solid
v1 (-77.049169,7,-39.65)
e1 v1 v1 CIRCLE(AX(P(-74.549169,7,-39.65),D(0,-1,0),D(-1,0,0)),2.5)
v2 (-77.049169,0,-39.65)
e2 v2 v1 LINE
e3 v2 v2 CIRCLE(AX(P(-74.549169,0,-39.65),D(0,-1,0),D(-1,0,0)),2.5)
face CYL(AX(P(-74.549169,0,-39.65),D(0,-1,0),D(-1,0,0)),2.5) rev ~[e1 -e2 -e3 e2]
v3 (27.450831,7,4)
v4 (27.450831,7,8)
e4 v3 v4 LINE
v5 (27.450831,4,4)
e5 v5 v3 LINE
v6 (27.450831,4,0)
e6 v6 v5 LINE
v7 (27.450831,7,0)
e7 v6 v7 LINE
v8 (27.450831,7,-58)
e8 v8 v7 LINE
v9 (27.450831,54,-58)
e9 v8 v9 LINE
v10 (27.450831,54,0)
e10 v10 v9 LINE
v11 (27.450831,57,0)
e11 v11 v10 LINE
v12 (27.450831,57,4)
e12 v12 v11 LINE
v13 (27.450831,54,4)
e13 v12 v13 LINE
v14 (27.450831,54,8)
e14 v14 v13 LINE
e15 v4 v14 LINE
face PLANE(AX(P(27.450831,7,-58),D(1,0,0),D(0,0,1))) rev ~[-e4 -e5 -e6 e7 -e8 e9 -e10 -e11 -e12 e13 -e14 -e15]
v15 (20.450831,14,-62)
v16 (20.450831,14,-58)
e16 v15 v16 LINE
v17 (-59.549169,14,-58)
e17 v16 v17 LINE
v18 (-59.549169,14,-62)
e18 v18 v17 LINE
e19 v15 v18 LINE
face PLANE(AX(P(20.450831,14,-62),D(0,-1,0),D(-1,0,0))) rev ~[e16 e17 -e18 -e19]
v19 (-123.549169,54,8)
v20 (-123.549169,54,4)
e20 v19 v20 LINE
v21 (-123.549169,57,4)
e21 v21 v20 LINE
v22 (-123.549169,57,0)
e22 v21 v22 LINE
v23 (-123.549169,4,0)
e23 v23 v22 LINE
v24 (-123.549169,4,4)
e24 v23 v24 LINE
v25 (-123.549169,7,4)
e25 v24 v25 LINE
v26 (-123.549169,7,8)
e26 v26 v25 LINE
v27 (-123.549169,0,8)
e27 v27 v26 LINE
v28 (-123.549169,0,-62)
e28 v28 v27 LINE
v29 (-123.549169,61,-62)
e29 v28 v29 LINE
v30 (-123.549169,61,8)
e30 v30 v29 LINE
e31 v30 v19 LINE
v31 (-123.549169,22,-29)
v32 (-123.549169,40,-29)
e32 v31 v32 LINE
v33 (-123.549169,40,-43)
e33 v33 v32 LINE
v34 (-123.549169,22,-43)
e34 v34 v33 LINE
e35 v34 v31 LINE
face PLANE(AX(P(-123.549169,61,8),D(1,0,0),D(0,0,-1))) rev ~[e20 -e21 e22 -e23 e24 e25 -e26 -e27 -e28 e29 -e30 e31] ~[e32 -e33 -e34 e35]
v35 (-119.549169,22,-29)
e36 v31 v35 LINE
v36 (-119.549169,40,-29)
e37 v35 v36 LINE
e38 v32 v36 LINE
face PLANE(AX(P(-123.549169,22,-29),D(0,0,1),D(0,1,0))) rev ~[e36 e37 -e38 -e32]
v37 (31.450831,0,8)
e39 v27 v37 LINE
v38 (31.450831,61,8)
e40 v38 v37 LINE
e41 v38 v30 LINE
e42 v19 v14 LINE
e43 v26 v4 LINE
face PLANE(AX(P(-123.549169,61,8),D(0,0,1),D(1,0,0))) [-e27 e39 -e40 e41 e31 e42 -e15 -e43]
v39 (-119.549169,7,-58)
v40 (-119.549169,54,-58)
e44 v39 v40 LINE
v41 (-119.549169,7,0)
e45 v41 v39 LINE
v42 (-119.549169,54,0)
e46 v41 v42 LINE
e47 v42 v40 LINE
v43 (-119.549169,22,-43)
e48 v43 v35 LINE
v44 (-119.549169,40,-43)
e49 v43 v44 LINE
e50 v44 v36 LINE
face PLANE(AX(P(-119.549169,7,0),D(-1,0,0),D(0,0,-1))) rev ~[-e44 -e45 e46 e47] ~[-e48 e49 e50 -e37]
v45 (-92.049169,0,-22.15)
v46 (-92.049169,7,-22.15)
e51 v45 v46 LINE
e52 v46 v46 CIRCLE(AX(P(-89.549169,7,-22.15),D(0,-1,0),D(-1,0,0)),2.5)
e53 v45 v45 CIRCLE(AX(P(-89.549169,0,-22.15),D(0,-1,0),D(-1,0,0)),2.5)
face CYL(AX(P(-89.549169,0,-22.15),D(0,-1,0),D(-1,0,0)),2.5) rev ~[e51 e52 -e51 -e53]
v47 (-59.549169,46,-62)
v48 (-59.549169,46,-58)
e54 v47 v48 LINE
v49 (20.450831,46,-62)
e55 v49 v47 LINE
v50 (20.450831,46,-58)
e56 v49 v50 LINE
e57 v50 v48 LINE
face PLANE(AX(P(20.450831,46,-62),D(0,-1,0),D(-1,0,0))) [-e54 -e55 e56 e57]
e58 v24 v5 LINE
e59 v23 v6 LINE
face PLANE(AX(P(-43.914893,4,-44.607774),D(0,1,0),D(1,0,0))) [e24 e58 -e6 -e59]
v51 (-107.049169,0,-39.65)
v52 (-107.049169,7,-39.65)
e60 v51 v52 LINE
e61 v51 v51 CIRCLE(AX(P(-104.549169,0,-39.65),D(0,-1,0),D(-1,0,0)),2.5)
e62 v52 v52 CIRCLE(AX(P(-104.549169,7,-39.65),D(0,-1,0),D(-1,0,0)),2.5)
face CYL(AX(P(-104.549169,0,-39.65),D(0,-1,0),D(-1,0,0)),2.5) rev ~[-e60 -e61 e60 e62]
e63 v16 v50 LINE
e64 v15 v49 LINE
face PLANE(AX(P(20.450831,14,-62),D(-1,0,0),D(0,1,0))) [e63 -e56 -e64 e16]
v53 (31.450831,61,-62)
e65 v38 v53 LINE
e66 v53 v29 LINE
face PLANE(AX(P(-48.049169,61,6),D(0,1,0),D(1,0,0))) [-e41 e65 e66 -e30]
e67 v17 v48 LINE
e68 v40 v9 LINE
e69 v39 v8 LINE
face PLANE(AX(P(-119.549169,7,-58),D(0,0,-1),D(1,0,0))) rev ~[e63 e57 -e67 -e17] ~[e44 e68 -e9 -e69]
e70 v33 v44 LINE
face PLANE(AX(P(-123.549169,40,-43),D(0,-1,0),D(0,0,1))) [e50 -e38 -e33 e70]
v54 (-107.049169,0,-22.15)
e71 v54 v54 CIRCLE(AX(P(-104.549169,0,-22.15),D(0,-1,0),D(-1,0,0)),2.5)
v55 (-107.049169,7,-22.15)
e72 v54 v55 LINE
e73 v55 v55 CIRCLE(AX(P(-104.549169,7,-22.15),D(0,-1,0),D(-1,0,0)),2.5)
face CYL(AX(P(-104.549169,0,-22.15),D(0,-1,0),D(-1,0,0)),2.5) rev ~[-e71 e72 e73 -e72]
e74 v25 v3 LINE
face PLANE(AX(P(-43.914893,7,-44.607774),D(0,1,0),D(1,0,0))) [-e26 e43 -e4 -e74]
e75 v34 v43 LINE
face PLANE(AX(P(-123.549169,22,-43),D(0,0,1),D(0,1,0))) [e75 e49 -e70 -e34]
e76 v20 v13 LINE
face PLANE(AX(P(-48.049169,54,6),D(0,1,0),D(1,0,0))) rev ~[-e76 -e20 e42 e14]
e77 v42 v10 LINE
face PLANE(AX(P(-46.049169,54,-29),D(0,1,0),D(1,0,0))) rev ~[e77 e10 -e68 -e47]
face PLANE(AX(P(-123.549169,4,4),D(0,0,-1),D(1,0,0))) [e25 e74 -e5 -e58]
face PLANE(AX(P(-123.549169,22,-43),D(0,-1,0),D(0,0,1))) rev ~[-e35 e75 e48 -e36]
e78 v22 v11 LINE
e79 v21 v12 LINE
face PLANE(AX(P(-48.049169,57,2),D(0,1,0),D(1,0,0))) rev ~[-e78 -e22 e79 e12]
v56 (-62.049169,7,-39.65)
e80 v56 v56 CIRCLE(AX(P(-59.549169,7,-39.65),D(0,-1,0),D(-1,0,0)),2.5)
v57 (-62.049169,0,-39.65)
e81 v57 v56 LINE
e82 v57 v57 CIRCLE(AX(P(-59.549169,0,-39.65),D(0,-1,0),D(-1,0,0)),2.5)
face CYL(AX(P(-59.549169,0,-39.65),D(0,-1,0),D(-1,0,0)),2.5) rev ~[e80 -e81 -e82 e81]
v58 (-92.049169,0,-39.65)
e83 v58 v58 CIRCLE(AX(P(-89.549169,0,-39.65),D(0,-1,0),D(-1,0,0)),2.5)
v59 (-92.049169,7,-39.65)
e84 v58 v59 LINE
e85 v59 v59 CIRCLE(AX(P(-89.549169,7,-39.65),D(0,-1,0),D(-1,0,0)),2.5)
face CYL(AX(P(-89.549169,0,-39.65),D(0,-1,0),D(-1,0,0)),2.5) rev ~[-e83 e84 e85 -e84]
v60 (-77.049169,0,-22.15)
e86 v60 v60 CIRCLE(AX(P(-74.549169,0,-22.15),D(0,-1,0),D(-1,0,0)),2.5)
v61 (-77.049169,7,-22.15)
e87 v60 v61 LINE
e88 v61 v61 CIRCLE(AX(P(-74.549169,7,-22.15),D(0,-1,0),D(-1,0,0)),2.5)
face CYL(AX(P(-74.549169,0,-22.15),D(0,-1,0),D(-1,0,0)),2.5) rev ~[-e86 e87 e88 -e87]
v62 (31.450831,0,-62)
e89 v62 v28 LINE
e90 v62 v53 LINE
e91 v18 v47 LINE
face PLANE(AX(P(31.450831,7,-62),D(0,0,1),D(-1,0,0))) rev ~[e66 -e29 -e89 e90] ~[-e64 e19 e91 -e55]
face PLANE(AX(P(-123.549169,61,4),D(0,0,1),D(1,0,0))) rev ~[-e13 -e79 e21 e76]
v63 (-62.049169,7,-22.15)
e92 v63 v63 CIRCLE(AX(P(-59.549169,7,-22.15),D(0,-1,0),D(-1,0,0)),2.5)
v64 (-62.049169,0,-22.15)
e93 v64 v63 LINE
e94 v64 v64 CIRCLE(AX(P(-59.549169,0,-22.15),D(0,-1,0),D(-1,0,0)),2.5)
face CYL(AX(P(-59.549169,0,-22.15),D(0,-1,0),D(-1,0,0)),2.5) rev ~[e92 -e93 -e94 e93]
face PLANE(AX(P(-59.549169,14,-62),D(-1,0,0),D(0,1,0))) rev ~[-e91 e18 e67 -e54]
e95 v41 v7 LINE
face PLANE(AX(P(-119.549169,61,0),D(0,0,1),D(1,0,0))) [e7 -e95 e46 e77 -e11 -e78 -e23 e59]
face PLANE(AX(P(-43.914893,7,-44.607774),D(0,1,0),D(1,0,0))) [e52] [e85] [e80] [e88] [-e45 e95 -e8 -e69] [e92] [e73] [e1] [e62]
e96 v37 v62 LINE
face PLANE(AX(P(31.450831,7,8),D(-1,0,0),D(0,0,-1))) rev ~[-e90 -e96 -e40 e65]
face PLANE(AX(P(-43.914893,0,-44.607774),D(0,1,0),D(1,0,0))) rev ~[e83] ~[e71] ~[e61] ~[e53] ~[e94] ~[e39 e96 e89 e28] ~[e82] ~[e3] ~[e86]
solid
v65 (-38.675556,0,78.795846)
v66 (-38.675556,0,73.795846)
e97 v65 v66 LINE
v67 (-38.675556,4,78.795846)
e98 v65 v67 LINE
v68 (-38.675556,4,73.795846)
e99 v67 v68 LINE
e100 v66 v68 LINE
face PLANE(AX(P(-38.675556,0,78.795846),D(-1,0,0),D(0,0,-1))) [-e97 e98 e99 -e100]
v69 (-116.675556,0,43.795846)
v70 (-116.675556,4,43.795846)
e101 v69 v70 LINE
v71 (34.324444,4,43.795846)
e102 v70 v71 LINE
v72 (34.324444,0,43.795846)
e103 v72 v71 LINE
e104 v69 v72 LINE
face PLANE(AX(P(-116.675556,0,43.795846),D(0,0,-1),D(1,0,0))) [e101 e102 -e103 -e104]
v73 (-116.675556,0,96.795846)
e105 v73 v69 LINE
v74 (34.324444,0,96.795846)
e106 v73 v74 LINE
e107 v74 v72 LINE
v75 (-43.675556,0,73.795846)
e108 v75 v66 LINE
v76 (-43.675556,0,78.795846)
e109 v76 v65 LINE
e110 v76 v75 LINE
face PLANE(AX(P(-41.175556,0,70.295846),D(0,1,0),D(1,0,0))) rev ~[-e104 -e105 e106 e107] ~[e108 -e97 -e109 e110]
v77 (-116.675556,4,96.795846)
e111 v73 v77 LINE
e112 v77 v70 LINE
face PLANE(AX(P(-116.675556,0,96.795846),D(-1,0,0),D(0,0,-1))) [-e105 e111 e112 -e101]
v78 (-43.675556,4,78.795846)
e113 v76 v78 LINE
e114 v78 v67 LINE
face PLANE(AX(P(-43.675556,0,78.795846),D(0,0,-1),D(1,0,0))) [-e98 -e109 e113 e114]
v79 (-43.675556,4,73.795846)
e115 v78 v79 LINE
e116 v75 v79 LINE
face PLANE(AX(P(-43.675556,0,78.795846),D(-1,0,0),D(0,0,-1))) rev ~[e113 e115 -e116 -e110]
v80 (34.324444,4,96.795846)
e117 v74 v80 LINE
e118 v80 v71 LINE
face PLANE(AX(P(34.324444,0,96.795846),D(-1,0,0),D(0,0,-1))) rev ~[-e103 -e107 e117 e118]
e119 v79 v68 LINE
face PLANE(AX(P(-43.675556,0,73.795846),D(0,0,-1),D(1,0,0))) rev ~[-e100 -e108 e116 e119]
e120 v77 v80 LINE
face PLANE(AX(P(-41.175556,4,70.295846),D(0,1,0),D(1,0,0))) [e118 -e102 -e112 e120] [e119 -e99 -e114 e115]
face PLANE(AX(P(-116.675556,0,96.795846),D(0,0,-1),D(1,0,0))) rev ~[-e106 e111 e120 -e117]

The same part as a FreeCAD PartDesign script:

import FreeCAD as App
import Part
import Sketcher
from FreeCAD import Vector
Q = App.Units.Quantity


def add_polygon(sketch, points):
    """Adds a closed chain of lines whose ends are joined by coincident constraints."""
    first, n = sketch.GeometryCount, len(points)
    for a, b in zip(points, points[1:] + points[:1]):
        sketch.addGeometry(Part.LineSegment(App.Vector(*a, 0), App.Vector(*b, 0)), False)
    for i in range(n):
        sketch.addConstraint(Sketcher.Constraint("Coincident", first + i, 2, first + (i + 1) % n, 1))

doc = App.newDocument("Part")
body = doc.addObject("PartDesign::Body", "Body")

sketch1 = doc.addObject("Sketcher::SketchObject", "Sketch")
body.addObject(sketch1)
sketch1.AttachmentSupport = (doc.XZ_Plane, [""])
sketch1.MapMode = "FlatFace"
add_polygon(sketch1, [(31, 8), (31, -62), (-124, -62), (-124, 8)])
sketch1.addConstraint(Sketcher.Constraint("Vertical", 0))
sketch1.addConstraint(Sketcher.Constraint("Horizontal", 1))
sketch1.addConstraint(Sketcher.Constraint("Vertical", 2))
sketch1.addConstraint(Sketcher.Constraint("Horizontal", 3))
sketch1.addConstraint(Sketcher.Constraint("DistanceX", 1, 2, 1, 1, Q("155 mm")))
sketch1.addConstraint(Sketcher.Constraint("DistanceY", 0, 2, 0, 1, Q("70 mm")))
sketch1.addConstraint(Sketcher.Constraint("DistanceY", 0, 2, -1, 1, Q("62 mm")))
sketch1.addConstraint(Sketcher.Constraint("DistanceX", -1, 1, 0, 2, Q("31.450831 mm")))
pad1 = doc.addObject("PartDesign::Pad", "Pad")
body.addObject(pad1)
pad1.Profile = sketch1
pad1.Length = 4
pad1.Reversed = True

sketch2 = doc.addObject("Sketcher::SketchObject", "Sketch001")
body.addObject(sketch2)
sketch2.AttachmentSupport = (doc.XZ_Plane, [""])
sketch2.MapMode = "FlatFace"
sketch2.AttachmentOffset = App.Placement(Vector(0, 0, -4), App.Rotation())
add_polygon(sketch2, [(27.5, 0), (27.5, 4), (-123.5, 4), (-123.5, 8), (31.5, 8), (31.5, -62), (-123.5, -62), (-123.5, 0)])
sketch2.addConstraint(Sketcher.Constraint("Vertical", 0))
sketch2.addConstraint(Sketcher.Constraint("Horizontal", 1))
sketch2.addConstraint(Sketcher.Constraint("Vertical", 2))
sketch2.addConstraint(Sketcher.Constraint("Horizontal", 3))
sketch2.addConstraint(Sketcher.Constraint("Vertical", 4))
sketch2.addConstraint(Sketcher.Constraint("Horizontal", 5))
sketch2.addConstraint(Sketcher.Constraint("Vertical", 6))
sketch2.addConstraint(Sketcher.Constraint("Horizontal", 7))
sketch2.addConstraint(Sketcher.Constraint("PointOnObject", 6, 2, -1))
sketch2.addConstraint(Sketcher.Constraint("Vertical", 2, 2, 5, 2))
sketch2.addConstraint(Sketcher.Constraint("Equal", 0, 2))
sketch2.addConstraint(Sketcher.Constraint("DistanceX", 1, 2, 1, 1, Q("151 mm")))
sketch2.addConstraint(Sketcher.Constraint("DistanceX", 3, 1, 3, 2, Q("155 mm")))
sketch2.addConstraint(Sketcher.Constraint("DistanceY", 0, 1, 0, 2, Q("4 mm")))
sketch2.addConstraint(Sketcher.Constraint("DistanceY", 4, 2, 4, 1, Q("70 mm")))
sketch2.addConstraint(Sketcher.Constraint("DistanceX", -1, 1, 0, 2, Q("27.450831 mm")))
pad2 = doc.addObject("PartDesign::Pad", "Pad001")
body.addObject(pad2)
pad2.Profile = sketch2
pad2.Length = 3
pad2.Reversed = True

sketch3 = doc.addObject("Sketcher::SketchObject", "Sketch002")
body.addObject(sketch3)
sketch3.AttachmentSupport = (doc.XZ_Plane, [""])
sketch3.MapMode = "FlatFace"
sketch3.AttachmentOffset = App.Placement(Vector(0, 0, -7), App.Rotation())
add_polygon(sketch3, [(31.5, 8), (31.5, -62), (-123.5, -62), (-123.5, 0), (-119.5, 0), (-119.5, -58), (27.5, -58), (27.5, 8)])
sketch3.addConstraint(Sketcher.Constraint("Vertical", 0))
sketch3.addConstraint(Sketcher.Constraint("Horizontal", 1))
sketch3.addConstraint(Sketcher.Constraint("Vertical", 2))
sketch3.addConstraint(Sketcher.Constraint("Horizontal", 3))
sketch3.addConstraint(Sketcher.Constraint("Vertical", 4))
sketch3.addConstraint(Sketcher.Constraint("Horizontal", 5))
sketch3.addConstraint(Sketcher.Constraint("Vertical", 6))
sketch3.addConstraint(Sketcher.Constraint("Horizontal", 7))
sketch3.addConstraint(Sketcher.Constraint("PointOnObject", 2, 2, -1))
sketch3.addConstraint(Sketcher.Constraint("Equal", 3, 7))
sketch3.addConstraint(Sketcher.Constraint("DistanceX", 1, 2, 1, 1, Q("155 mm")))
sketch3.addConstraint(Sketcher.Constraint("DistanceX", 3, 1, 3, 2, Q("4 mm")))
sketch3.addConstraint(Sketcher.Constraint("DistanceY", 0, 2, 0, 1, Q("70 mm")))
sketch3.addConstraint(Sketcher.Constraint("DistanceY", 2, 1, 2, 2, Q("62 mm")))
sketch3.addConstraint(Sketcher.Constraint("DistanceY", 4, 2, 4, 1, Q("58 mm")))
sketch3.addConstraint(Sketcher.Constraint("DistanceX", -1, 1, 0, 2, Q("31.450831 mm")))
pad3 = doc.addObject("PartDesign::Pad", "Pad002")
body.addObject(pad3)
pad3.Profile = sketch3
pad3.Length = 54
pad3.Reversed = True

sketch4 = doc.addObject("Sketcher::SketchObject", "Sketch003")
body.addObject(sketch4)
sketch4.AttachmentSupport = (doc.XZ_Plane, [""])
sketch4.MapMode = "FlatFace"
sketch4.AttachmentOffset = App.Placement(Vector(0, 0, -61), App.Rotation())
add_polygon(sketch4, [(-120, -58), (-120, 0), (27, 0), (27, -58)])
sketch4.addConstraint(Sketcher.Constraint("Vertical", 0))
sketch4.addConstraint(Sketcher.Constraint("Horizontal", 1))
sketch4.addConstraint(Sketcher.Constraint("Vertical", 2))
sketch4.addConstraint(Sketcher.Constraint("Horizontal", 3))
sketch4.addConstraint(Sketcher.Constraint("PointOnObject", 0, 2, -1))
sketch4.addConstraint(Sketcher.Constraint("DistanceX", 1, 1, 1, 2, Q("147 mm")))
sketch4.addConstraint(Sketcher.Constraint("DistanceY", 0, 1, 0, 2, Q("58 mm")))
sketch4.addConstraint(Sketcher.Constraint("DistanceX", 0, 2, -1, 1, Q("119.549169 mm")))
pad4 = doc.addObject("PartDesign::Pad", "Pad003")
body.addObject(pad4)
pad4.Profile = sketch4
pad4.Length = 7

sketch5 = doc.addObject("Sketcher::SketchObject", "Sketch004")
body.addObject(sketch5)
sketch5.AttachmentSupport = (doc.XZ_Plane, [""])
sketch5.MapMode = "FlatFace"
sketch5.AttachmentOffset = App.Placement(Vector(0, 0, -61), App.Rotation())
add_polygon(sketch5, [(-123.5, 0), (-123.5, 4), (27.5, 4), (27.5, 0)])
sketch5.addConstraint(Sketcher.Constraint("Vertical", 0))
sketch5.addConstraint(Sketcher.Constraint("Horizontal", 1))
sketch5.addConstraint(Sketcher.Constraint("Vertical", 2))
sketch5.addConstraint(Sketcher.Constraint("Horizontal", 3))
sketch5.addConstraint(Sketcher.Constraint("PointOnObject", 2, 2, -1))
sketch5.addConstraint(Sketcher.Constraint("DistanceX", 1, 1, 1, 2, Q("151 mm")))
sketch5.addConstraint(Sketcher.Constraint("DistanceY", 0, 1, 0, 2, Q("4 mm")))
sketch5.addConstraint(Sketcher.Constraint("DistanceX", 0, 2, -1, 1, Q("123.549169 mm")))
pad5 = doc.addObject("PartDesign::Pad", "Pad004")
body.addObject(pad5)
pad5.Profile = sketch5
pad5.Length = 4

sketch6 = doc.addObject("Sketcher::SketchObject", "Sketch005")
body.addObject(sketch6)
sketch6.AttachmentSupport = (doc.XZ_Plane, [""])
sketch6.MapMode = "FlatFace"
sketch6.AttachmentOffset = App.Placement(Vector(0, 0, -61), App.Rotation())
add_polygon(sketch6, [(-123.5, 4), (-123.5, 8), (27.5, 8), (27.5, 4)])
sketch6.addConstraint(Sketcher.Constraint("Vertical", 0))
sketch6.addConstraint(Sketcher.Constraint("Horizontal", 1))
sketch6.addConstraint(Sketcher.Constraint("Vertical", 2))
sketch6.addConstraint(Sketcher.Constraint("Horizontal", 3))
sketch6.addConstraint(Sketcher.Constraint("DistanceX", 1, 1, 1, 2, Q("151 mm")))
sketch6.addConstraint(Sketcher.Constraint("DistanceY", 0, 1, 0, 2, Q("4 mm")))
sketch6.addConstraint(Sketcher.Constraint("DistanceY", -1, 1, 0, 2, Q("8 mm")))
sketch6.addConstraint(Sketcher.Constraint("DistanceX", 0, 2, -1, 1, Q("123.549169 mm")))
pad6 = doc.addObject("PartDesign::Pad", "Pad005")
body.addObject(pad6)
pad6.Profile = sketch6
pad6.Length = 7

sketch7 = doc.addObject("Sketcher::SketchObject", "Sketch006")
body.addObject(sketch7)
sketch7.AttachmentSupport = (doc.YZ_Plane, [""])
sketch7.MapMode = "FlatFace"
sketch7.AttachmentOffset = App.Placement(Vector(0, 0, -123.549169), App.Rotation())
add_polygon(sketch7, [(40, -43), (22, -43), (22, -29), (40, -29)])
sketch7.addConstraint(Sketcher.Constraint("Horizontal", 0))
sketch7.addConstraint(Sketcher.Constraint("Vertical", 1))
sketch7.addConstraint(Sketcher.Constraint("Horizontal", 2))
sketch7.addConstraint(Sketcher.Constraint("Vertical", 3))
sketch7.addConstraint(Sketcher.Constraint("DistanceX", 0, 2, 0, 1, Q("18 mm")))
sketch7.addConstraint(Sketcher.Constraint("DistanceY", 1, 1, 1, 2, Q("14 mm")))
sketch7.addConstraint(Sketcher.Constraint("DistanceX", -1, 1, 0, 2, Q("22 mm")))
sketch7.addConstraint(Sketcher.Constraint("DistanceY", 0, 2, -1, 1, Q("43 mm")))
pocket1 = doc.addObject("PartDesign::Pocket", "Pocket")
body.addObject(pocket1)
pocket1.Profile = sketch7
pocket1.Length = 7
pocket1.Reversed = True

sketch8 = doc.addObject("Sketcher::SketchObject", "Sketch007")
body.addObject(sketch8)
sketch8.AttachmentSupport = (doc.XY_Plane, [""])
sketch8.MapMode = "FlatFace"
sketch8.AttachmentOffset = App.Placement(Vector(0, 0, -62), App.Rotation())
add_polygon(sketch8, [(20, 46), (20, 14), (-60, 14), (-60, 46)])
sketch8.addConstraint(Sketcher.Constraint("Vertical", 0))
sketch8.addConstraint(Sketcher.Constraint("Horizontal", 1))
sketch8.addConstraint(Sketcher.Constraint("Vertical", 2))
sketch8.addConstraint(Sketcher.Constraint("Horizontal", 3))
sketch8.addConstraint(Sketcher.Constraint("DistanceX", 1, 2, 1, 1, Q("80 mm")))
sketch8.addConstraint(Sketcher.Constraint("DistanceY", 0, 2, 0, 1, Q("32 mm")))
sketch8.addConstraint(Sketcher.Constraint("DistanceY", -1, 1, 0, 2, Q("14 mm")))
sketch8.addConstraint(Sketcher.Constraint("DistanceX", -1, 1, 0, 2, Q("20.450831 mm")))
pocket2 = doc.addObject("PartDesign::Pocket", "Pocket001")
body.addObject(pocket2)
pocket2.Profile = sketch8
pocket2.Length = 7
pocket2.Reversed = True

sketch9 = doc.addObject("Sketcher::SketchObject", "Sketch008")
body.addObject(sketch9)
sketch9.AttachmentSupport = (doc.XZ_Plane, [""])
sketch9.MapMode = "FlatFace"
sketch9.addGeometry(Part.Circle(Vector(-104.5, -39.6, 0), Vector(0, 0, 1), 2.5), False)
sketch9.addGeometry(Part.Circle(Vector(-104.5, -22.1, 0), Vector(0, 0, 1), 2.5), False)
sketch9.addGeometry(Part.Circle(Vector(-89.5, -39.6, 0), Vector(0, 0, 1), 2.5), False)
sketch9.addGeometry(Part.Circle(Vector(-89.5, -22.1, 0), Vector(0, 0, 1), 2.5), False)
sketch9.addGeometry(Part.Circle(Vector(-74.5, -39.6, 0), Vector(0, 0, 1), 2.5), False)
sketch9.addGeometry(Part.Circle(Vector(-74.5, -22.1, 0), Vector(0, 0, 1), 2.5), False)
sketch9.addGeometry(Part.Circle(Vector(-59.5, -39.6, 0), Vector(0, 0, 1), 2.5), False)
sketch9.addGeometry(Part.Circle(Vector(-59.5, -22.1, 0), Vector(0, 0, 1), 2.5), False)
sketch9.addConstraint(Sketcher.Constraint("Equal", 0, 1))
sketch9.addConstraint(Sketcher.Constraint("Equal", 1, 2))
sketch9.addConstraint(Sketcher.Constraint("Equal", 2, 3))
sketch9.addConstraint(Sketcher.Constraint("Equal", 3, 4))
sketch9.addConstraint(Sketcher.Constraint("Equal", 4, 5))
sketch9.addConstraint(Sketcher.Constraint("Equal", 5, 6))
sketch9.addConstraint(Sketcher.Constraint("Equal", 6, 7))
sketch9.addConstraint(Sketcher.Constraint("Horizontal", 0, 3, 2, 3))
sketch9.addConstraint(Sketcher.Constraint("Horizontal", 1, 3, 3, 3))
sketch9.addConstraint(Sketcher.Constraint("Horizontal", 2, 3, 4, 3))
sketch9.addConstraint(Sketcher.Constraint("Horizontal", 3, 3, 5, 3))
sketch9.addConstraint(Sketcher.Constraint("Horizontal", 4, 3, 6, 3))
sketch9.addConstraint(Sketcher.Constraint("Horizontal", 5, 3, 7, 3))
sketch9.addConstraint(Sketcher.Constraint("Vertical", 0, 3, 1, 3))
sketch9.addConstraint(Sketcher.Constraint("Vertical", 2, 3, 3, 3))
sketch9.addConstraint(Sketcher.Constraint("Vertical", 4, 3, 5, 3))
sketch9.addConstraint(Sketcher.Constraint("Vertical", 6, 3, 7, 3))
sketch9.addConstraint(Sketcher.Constraint("Diameter", 0, Q("5 mm")))
sketch9.addConstraint(Sketcher.Constraint("DistanceX", 0, 3, 2, 3, Q("15 mm")))
sketch9.addConstraint(Sketcher.Constraint("DistanceX", 2, 3, 4, 3, Q("15 mm")))
sketch9.addConstraint(Sketcher.Constraint("DistanceX", 4, 3, 6, 3, Q("15 mm")))
sketch9.addConstraint(Sketcher.Constraint("DistanceY", 0, 3, 1, 3, Q("17.5 mm")))
sketch9.addConstraint(Sketcher.Constraint("DistanceY", 0, 3, -1, 1, Q("39.65 mm")))
sketch9.addConstraint(Sketcher.Constraint("DistanceX", 0, 3, -1, 1, Q("104.549169 mm")))
pocket3 = doc.addObject("PartDesign::Pocket", "Pocket002")
body.addObject(pocket3)
pocket3.Profile = sketch9
pocket3.Length = 10
body2 = doc.addObject("PartDesign::Body", "Body001")

sketch10 = doc.addObject("Sketcher::SketchObject", "Sketch009")
body2.addObject(sketch10)
sketch10.AttachmentSupport = (doc.getObject("XZ_Plane001"), [""])
sketch10.MapMode = "FlatFace"
add_polygon(sketch10, [(-117, 44), (-117, 97), (34, 97), (34, 44)])
add_polygon(sketch10, [(-39, 79), (-44, 79), (-44, 74), (-39, 74)])
sketch10.addConstraint(Sketcher.Constraint("Vertical", 0))
sketch10.addConstraint(Sketcher.Constraint("Horizontal", 1))
sketch10.addConstraint(Sketcher.Constraint("Vertical", 2))
sketch10.addConstraint(Sketcher.Constraint("Horizontal", 3))
sketch10.addConstraint(Sketcher.Constraint("Horizontal", 4))
sketch10.addConstraint(Sketcher.Constraint("Vertical", 5))
sketch10.addConstraint(Sketcher.Constraint("Horizontal", 6))
sketch10.addConstraint(Sketcher.Constraint("Vertical", 7))
sketch10.addConstraint(Sketcher.Constraint("Equal", 6, 5))
sketch10.addConstraint(Sketcher.Constraint("DistanceX", 1, 1, 1, 2, Q("151 mm")))
sketch10.addConstraint(Sketcher.Constraint("DistanceX", 4, 2, 4, 1, Q("5 mm")))
sketch10.addConstraint(Sketcher.Constraint("DistanceY", 0, 1, 0, 2, Q("53 mm")))
sketch10.addConstraint(Sketcher.Constraint("DistanceX", 0, 2, 4, 2, Q("73 mm")))
sketch10.addConstraint(Sketcher.Constraint("DistanceY", 4, 2, 0, 2, Q("18 mm")))
sketch10.addConstraint(Sketcher.Constraint("DistanceX", 0, 2, -1, 1, Q("116.675556 mm")))
sketch10.addConstraint(Sketcher.Constraint("DistanceY", -1, 1, 0, 2, Q("96.795846 mm")))
pad7 = doc.addObject("PartDesign::Pad", "Pad006")
body2.addObject(pad7)
pad7.Profile = sketch10
pad7.Length = 4
pad7.Reversed = True

doc.recompute()
